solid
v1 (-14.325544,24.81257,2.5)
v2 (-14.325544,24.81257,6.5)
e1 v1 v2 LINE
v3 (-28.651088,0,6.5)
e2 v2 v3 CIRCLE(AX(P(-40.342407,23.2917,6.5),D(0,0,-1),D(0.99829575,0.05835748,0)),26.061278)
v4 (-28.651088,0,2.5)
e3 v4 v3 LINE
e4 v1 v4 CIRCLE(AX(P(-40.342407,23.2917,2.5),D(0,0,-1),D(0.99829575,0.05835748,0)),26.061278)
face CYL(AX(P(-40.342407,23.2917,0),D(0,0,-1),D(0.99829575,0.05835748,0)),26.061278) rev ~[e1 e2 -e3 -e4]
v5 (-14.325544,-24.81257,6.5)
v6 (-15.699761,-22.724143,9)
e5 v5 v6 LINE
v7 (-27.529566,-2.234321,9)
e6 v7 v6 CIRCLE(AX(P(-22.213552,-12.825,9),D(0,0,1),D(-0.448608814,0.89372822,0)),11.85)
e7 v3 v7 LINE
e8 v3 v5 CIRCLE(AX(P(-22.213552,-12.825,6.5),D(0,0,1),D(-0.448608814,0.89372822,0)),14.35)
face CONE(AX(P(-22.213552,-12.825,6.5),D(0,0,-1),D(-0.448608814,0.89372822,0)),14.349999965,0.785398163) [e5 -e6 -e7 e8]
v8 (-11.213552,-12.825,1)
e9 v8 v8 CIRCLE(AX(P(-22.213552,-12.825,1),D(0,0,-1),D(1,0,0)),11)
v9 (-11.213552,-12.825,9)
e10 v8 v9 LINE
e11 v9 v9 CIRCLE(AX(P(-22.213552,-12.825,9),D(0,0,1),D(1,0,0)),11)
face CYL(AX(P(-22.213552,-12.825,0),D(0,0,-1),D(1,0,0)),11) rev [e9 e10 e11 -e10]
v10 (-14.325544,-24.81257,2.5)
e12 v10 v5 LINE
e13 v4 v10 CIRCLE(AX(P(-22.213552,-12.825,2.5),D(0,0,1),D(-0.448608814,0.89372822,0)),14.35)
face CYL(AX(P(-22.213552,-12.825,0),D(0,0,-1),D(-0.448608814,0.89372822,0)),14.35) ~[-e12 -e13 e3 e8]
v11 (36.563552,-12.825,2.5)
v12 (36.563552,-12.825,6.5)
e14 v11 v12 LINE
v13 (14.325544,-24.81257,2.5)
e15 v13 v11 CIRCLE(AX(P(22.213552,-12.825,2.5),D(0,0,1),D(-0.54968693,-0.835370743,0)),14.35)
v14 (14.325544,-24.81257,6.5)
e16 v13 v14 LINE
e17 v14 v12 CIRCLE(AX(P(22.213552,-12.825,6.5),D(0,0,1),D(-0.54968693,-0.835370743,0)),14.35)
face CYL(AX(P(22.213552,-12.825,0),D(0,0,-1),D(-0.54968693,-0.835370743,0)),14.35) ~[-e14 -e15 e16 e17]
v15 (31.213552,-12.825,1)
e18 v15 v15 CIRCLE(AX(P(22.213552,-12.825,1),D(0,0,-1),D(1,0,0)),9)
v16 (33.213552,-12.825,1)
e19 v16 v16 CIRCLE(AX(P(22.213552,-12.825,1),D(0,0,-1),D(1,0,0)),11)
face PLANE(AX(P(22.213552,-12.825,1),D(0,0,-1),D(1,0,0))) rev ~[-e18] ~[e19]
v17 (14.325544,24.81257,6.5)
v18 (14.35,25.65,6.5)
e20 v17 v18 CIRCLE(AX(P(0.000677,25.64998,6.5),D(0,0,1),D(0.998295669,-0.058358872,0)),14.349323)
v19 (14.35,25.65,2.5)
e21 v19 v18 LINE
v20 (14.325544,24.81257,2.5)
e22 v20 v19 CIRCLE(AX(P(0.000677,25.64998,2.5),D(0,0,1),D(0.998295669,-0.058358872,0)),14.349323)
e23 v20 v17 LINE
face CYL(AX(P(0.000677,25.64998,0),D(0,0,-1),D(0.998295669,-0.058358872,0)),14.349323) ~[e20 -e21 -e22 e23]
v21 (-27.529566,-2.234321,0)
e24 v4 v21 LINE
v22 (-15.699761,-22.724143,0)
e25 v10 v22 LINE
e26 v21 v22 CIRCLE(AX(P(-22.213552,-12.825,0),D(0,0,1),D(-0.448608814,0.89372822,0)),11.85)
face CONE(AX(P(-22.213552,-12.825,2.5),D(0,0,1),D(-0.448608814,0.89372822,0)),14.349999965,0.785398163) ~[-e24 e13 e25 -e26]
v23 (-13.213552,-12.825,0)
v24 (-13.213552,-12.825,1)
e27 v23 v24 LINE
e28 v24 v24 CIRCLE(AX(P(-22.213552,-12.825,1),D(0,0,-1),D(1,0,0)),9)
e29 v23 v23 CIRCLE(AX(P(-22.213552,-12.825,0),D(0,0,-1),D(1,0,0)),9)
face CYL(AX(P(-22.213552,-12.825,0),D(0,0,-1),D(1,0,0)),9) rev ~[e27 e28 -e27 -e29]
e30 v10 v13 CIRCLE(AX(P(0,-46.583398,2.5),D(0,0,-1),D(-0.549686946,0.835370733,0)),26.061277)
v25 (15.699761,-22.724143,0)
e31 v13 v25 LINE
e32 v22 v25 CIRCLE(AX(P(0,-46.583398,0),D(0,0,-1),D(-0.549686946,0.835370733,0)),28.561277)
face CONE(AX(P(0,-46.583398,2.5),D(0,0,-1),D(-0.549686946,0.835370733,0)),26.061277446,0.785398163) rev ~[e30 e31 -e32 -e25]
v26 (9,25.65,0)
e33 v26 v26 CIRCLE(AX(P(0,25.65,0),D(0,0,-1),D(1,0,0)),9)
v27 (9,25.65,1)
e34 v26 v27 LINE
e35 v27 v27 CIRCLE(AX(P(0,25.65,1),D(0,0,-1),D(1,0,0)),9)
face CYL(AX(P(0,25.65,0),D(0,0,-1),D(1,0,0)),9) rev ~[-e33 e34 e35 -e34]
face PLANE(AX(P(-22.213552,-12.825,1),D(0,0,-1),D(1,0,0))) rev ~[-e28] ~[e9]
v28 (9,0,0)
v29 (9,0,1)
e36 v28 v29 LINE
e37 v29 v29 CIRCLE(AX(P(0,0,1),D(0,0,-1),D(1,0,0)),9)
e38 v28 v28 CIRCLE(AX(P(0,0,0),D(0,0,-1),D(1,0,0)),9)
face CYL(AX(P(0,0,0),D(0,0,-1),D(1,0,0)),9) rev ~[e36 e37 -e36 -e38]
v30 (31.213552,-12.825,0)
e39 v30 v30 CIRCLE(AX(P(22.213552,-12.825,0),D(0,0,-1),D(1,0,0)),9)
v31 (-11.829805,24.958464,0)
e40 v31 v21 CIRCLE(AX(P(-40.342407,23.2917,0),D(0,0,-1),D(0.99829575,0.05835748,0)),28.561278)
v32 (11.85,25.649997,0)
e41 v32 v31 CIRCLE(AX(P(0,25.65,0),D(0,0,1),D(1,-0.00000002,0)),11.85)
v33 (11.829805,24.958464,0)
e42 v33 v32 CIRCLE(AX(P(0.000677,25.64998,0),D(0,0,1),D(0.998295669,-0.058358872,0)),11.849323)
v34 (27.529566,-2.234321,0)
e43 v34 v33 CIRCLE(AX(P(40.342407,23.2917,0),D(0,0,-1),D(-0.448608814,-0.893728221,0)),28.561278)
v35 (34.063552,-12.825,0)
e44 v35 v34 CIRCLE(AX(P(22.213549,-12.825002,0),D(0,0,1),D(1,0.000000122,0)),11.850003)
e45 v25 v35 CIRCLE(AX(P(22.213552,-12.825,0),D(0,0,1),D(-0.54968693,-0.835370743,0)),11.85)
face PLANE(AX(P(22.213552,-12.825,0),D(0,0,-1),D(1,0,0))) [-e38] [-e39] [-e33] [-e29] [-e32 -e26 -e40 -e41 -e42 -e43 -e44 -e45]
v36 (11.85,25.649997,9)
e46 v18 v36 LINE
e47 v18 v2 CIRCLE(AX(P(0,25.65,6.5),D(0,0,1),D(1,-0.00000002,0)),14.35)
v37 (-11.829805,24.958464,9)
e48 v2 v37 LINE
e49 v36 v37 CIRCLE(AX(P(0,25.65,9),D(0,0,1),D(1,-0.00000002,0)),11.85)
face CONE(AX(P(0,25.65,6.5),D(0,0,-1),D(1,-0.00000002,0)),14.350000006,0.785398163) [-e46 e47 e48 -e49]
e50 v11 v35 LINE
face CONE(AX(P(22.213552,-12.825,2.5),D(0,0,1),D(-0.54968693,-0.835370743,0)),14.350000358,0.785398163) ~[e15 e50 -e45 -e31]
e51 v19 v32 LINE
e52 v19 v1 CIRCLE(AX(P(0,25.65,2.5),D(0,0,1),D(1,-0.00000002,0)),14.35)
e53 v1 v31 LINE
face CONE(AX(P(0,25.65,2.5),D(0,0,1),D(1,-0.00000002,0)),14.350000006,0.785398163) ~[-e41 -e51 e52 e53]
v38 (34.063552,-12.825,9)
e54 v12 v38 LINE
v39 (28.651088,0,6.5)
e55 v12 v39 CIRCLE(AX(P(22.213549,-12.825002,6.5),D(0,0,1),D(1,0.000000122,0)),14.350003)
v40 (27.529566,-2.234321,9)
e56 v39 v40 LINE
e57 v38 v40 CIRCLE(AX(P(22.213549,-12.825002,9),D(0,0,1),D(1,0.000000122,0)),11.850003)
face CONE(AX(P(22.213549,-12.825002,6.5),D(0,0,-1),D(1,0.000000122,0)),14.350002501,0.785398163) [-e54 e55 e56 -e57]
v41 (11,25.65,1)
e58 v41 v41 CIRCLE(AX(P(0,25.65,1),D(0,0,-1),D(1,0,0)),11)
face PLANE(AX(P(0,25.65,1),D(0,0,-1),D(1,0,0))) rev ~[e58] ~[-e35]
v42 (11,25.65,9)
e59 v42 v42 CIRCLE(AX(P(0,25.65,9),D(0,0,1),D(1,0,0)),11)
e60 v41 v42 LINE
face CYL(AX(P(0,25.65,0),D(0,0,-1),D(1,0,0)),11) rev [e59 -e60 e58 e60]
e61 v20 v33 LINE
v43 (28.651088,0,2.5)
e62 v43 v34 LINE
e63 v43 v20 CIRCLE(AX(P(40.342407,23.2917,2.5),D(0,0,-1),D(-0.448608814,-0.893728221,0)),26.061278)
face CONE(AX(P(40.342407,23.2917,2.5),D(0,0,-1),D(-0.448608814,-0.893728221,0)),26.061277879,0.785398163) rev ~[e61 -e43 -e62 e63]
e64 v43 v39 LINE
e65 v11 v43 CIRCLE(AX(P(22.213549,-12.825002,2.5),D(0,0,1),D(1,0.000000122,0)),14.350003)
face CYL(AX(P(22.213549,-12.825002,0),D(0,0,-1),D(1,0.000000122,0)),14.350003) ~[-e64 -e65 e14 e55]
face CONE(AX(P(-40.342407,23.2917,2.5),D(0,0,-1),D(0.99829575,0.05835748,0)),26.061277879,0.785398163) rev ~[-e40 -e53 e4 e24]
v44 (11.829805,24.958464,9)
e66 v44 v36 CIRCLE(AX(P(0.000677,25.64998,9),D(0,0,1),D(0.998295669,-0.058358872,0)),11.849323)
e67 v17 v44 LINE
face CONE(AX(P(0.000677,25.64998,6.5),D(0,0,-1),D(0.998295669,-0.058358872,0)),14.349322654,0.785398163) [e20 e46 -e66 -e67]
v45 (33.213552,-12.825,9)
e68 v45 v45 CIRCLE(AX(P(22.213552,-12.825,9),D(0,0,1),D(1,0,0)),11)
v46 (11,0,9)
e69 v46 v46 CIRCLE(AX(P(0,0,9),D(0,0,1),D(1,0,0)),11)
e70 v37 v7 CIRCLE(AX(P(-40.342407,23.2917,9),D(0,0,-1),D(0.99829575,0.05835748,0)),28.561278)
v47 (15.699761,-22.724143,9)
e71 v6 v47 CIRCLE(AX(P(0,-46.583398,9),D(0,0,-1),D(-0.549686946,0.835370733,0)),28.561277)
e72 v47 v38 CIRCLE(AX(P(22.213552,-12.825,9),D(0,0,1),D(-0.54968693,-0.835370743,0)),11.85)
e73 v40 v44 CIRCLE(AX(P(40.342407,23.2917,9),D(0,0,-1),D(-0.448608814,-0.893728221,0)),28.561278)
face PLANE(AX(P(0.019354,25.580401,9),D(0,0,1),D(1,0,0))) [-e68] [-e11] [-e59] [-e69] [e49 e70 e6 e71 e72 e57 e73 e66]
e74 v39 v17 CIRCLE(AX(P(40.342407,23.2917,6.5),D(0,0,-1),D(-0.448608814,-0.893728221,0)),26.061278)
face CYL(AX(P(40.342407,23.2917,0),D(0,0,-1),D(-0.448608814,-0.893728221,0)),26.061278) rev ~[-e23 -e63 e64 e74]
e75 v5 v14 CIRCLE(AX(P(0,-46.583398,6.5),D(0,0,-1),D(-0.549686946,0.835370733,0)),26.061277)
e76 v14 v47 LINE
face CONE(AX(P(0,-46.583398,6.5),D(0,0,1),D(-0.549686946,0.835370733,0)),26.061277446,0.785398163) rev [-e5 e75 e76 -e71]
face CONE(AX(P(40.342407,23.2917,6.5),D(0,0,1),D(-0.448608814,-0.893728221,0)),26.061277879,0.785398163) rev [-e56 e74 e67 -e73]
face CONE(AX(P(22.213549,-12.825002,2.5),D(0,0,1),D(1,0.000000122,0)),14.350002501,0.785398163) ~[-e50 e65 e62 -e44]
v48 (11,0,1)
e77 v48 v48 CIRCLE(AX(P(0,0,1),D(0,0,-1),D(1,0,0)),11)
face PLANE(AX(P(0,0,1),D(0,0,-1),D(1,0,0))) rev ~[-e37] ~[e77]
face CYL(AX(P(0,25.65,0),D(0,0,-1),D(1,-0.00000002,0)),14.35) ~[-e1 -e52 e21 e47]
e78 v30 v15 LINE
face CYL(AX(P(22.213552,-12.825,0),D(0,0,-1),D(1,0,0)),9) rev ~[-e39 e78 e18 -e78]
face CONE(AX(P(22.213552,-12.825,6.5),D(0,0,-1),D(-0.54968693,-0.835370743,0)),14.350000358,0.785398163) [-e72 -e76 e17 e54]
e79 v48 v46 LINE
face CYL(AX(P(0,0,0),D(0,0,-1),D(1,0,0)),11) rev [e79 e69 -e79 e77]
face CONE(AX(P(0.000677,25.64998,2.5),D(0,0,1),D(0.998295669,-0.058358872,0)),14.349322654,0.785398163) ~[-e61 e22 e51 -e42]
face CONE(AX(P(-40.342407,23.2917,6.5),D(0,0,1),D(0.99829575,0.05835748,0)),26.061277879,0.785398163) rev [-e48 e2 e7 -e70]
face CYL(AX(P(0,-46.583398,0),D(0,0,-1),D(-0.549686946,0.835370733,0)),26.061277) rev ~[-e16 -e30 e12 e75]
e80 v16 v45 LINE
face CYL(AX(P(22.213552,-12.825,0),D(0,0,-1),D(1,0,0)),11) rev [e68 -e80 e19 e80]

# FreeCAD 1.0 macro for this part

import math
import FreeCAD as App
import Part
import Sketcher


def edges_at(feature, points):
    """Names of the edges that pass closest to the given points."""
    edges = feature.Shape.Edges
    near = lambda p: min(range(len(edges)), key=lambda i: edges[i].distToShape(Part.Vertex(*p))[0])
    return sorted({f"Edge{near(p) + 1}" for p in points})

doc = App.newDocument("Part")
params = doc.addObject("Spreadsheet::Sheet", "Params")
for row, (alias, value) in enumerate([
    ("sketch1_diameter", "22 mm"),
    ("sketch1_diameter2", "22 mm"),
    ("sketch1_diameter3", "22 mm"),
    ("sketch1_diameter4", "22 mm"),
    ("sketch1_radius", "14.35 mm"),
    ("pad1_length", "9 mm"),
    ("chamfer_size", "2.5 mm"),
    ("sketch2_diameter", "22 mm"),
    ("sketch2_diameter2", "18 mm"),
    ("pad2_length", "1 mm"),
], start=1):
    params.set(f"A{row}", alias)
    params.set(f"B{row}", "=" + value)
    params.setAlias(f"B{row}", alias)

body = doc.addObject("PartDesign::Body", "Body")

# Sketch on XY plane
sketch1 = doc.addObject("Sketcher::SketchObject", "Sketch")
body.addObject(sketch1)
sketch1.AttachmentSupport = (doc.XY_Plane, [""])
sketch1.MapMode = "FlatFace"
sketch1.addGeometry(Part.ArcOfCircle(Part.Circle(App.Vector(0.000677, 25.64998, 0), App.Vector(0, 0, 1), 14.349323), math.radians(-3.345618), math.radians(0.000079)), False)
sketch1.addGeometry(Part.ArcOfCircle(Part.Circle(App.Vector(0, 25.65, 0), App.Vector(0, 0, 1), 14.35), math.radians(-0.000001), math.radians(183.34554)), False)
sketch1.addGeometry(Part.ArcOfCircle(Part.Circle(App.Vector(-40.342407, 23.2917, 0), App.Vector(0, 0, 1), 26.061278), math.radians(-63.345538), math.radians(3.345538)), False)
sketch1.addGeometry(Part.ArcOfCircle(Part.Circle(App.Vector(-22.213552, -12.825, 0), App.Vector(0, 0, 1), 14.35), math.radians(116.654462), math.radians(303.345538)), False)
sketch1.addGeometry(Part.ArcOfCircle(Part.Circle(App.Vector(0, -46.583398, 0), App.Vector(0, 0, 1), 26.061277), math.radians(56.654461), math.radians(123.345539)), False)
sketch1.addGeometry(Part.ArcOfCircle(Part.Circle(App.Vector(22.213552, -12.825, 0), App.Vector(0, 0, 1), 14.35), math.radians(-123.345538), math.radians(-0.000002)), False)
sketch1.addGeometry(Part.ArcOfCircle(Part.Circle(App.Vector(22.213549, -12.825002, 0), App.Vector(0, 0, 1), 14.350003), math.radians(0.000007), math.radians(63.345534)), False)
sketch1.addGeometry(Part.ArcOfCircle(Part.Circle(App.Vector(40.342407, 23.2917, 0), App.Vector(0, 0, 1), 26.061278), math.radians(176.654462), math.radians(243.345538)), False)
sketch1.addGeometry(Part.Circle(App.Vector(-22.213552, -12.825, 0), App.Vector(0, 0, 1), 11), False)
sketch1.addGeometry(Part.Circle(App.Vector(22.213552, -12.825, 0), App.Vector(0, 0, 1), 11), False)
sketch1.addGeometry(Part.Circle(App.Vector(0, 0, 0), App.Vector(0, 0, 1), 11), False)
sketch1.addGeometry(Part.Circle(App.Vector(0, 25.65, 0), App.Vector(0, 0, 1), 11), False)
sketch1.addConstraint(Sketcher.Constraint("Coincident", 0, 2, 1, 1))
sketch1.addConstraint(Sketcher.Constraint("Coincident", 1, 2, 2, 2))
sketch1.addConstraint(Sketcher.Constraint("Coincident", 2, 1, 3, 1))
sketch1.addConstraint(Sketcher.Constraint("Coincident", 3, 2, 4, 2))
sketch1.addConstraint(Sketcher.Constraint("Coincident", 4, 1, 5, 1))
sketch1.addConstraint(Sketcher.Constraint("Coincident", 5, 2, 6, 1))
sketch1.addConstraint(Sketcher.Constraint("Coincident", 6, 2, 7, 2))
sketch1.addConstraint(Sketcher.Constraint("Coincident", 7, 1, 0, 1))
sketch1.addConstraint(Sketcher.Constraint("Coincident", 10, 3, -1, 1))
sketch1.addConstraint(Sketcher.Constraint("Coincident", 6, 3, 5, 3))
sketch1.addConstraint(Sketcher.Constraint("Coincident", 8, 3, 3, 3))
sketch1.addConstraint(Sketcher.Constraint("Coincident", 9, 3, 5, 3))
sketch1.addConstraint(Sketcher.Constraint("Coincident", 11, 3, 1, 3))
sketch1.addConstraint(Sketcher.Constraint("PointOnObject", 1, 3, -2))
sketch1.addConstraint(Sketcher.Constraint("PointOnObject", 4, 3, -2))
sketch1.addConstraint(Sketcher.Constraint("PointOnObject", 2, 1, -1))
sketch1.addConstraint(Sketcher.Constraint("PointOnObject", 6, 2, -1))
sketch1.addConstraint(Sketcher.Constraint("Diameter", 8, 22.0))
sketch1.addConstraint(Sketcher.Constraint("Diameter", 9, 22.0))
sketch1.addConstraint(Sketcher.Constraint("Diameter", 10, 22.0))
sketch1.addConstraint(Sketcher.Constraint("Diameter", 11, 22.0))
sketch1.addConstraint(Sketcher.Constraint("Radius", 1, 14.35))
sketch1.addConstraint(Sketcher.Constraint("Radius", 3, 14.35))
sketch1.addConstraint(Sketcher.Constraint("Radius", 5, 14.35))
sketch1.addConstraint(Sketcher.Constraint("DistanceY", -1, 1, 1, 3, 25.65))
sketch1.addConstraint(Sketcher.Constraint("DistanceY", -1, 1, 0, 2, 25.65))
sketch1.addConstraint(Sketcher.Constraint("DistanceY", 3, 3, -1, 1, 12.825))
sketch1.addConstraint(Sketcher.Constraint("DistanceY", 5, 3, -1, 1, 12.825))
sketch1.addConstraint(Sketcher.Constraint("DistanceY", 5, 2, -1, 1, 12.825))
sketch1.addConstraint(Sketcher.Constraint("Radius", 0, 14.349323))
sketch1.addConstraint(Sketcher.Constraint("Radius", 2, 26.061278))
sketch1.addConstraint(Sketcher.Constraint("Radius", 4, 26.061277))
sketch1.addConstraint(Sketcher.Constraint("Radius", 7, 26.061278))
sketch1.addConstraint(Sketcher.Constraint("DistanceY", -1, 1, 2, 3, 23.2917))
sketch1.addConstraint(Sketcher.Constraint("DistanceY", -1, 1, 7, 3, 23.2917))
sketch1.addConstraint(Sketcher.Constraint("DistanceY", -1, 1, 1, 2, 24.81257))
sketch1.addConstraint(Sketcher.Constraint("DistanceY", 3, 2, -1, 1, 24.81257))
sketch1.addConstraint(Sketcher.Constraint("DistanceY", 4, 1, -1, 1, 24.81257))
sketch1.addConstraint(Sketcher.Constraint("DistanceY", -1, 1, 7, 1, 24.81257))
sketch1.setExpression("Constraints[17]", "Params.sketch1_diameter")
sketch1.setExpression("Constraints[18]", "Params.sketch1_diameter2")
sketch1.setExpression("Constraints[19]", "Params.sketch1_diameter3")
sketch1.setExpression("Constraints[20]", "Params.sketch1_diameter4")
sketch1.setExpression("Constraints[21]", "Params.sketch1_radius")
pad1 = doc.addObject("PartDesign::Pad", "Pad")
body.addObject(pad1)
pad1.Profile = sketch1
pad1.setExpression("Length", "Params.pad1_length")
doc.recompute()

chamfer = doc.addObject("PartDesign::Chamfer", "Chamfer")
body.addObject(chamfer)
chamfer.Base = (pad1, edges_at(pad1, [(17.773, 10.261, 9), (17.773, 10.261, 0)]))
chamfer.setExpression("Size", "Params.chamfer_size")

# Sketch on XY plane
sketch2 = doc.addObject("Sketcher::SketchObject", "Sketch001")
body.addObject(sketch2)
sketch2.AttachmentSupport = (doc.XY_Plane, [""])
sketch2.MapMode = "FlatFace"
sketch2.addGeometry(Part.Circle(App.Vector(22, -13, 0), App.Vector(0, 0, 1), 11), False)
sketch2.addGeometry(Part.Circle(App.Vector(22, -13, 0), App.Vector(0, 0, 1), 9), False)
sketch2.addGeometry(Part.Circle(App.Vector(-22, -13, 0), App.Vector(0, 0, 1), 11), False)
sketch2.addGeometry(Part.Circle(App.Vector(-22, -13, 0), App.Vector(0, 0, 1), 9), False)
sketch2.addGeometry(Part.Circle(App.Vector(0, 0, 0), App.Vector(0, 0, 1), 11), False)
sketch2.addGeometry(Part.Circle(App.Vector(0, 0, 0), App.Vector(0, 0, 1), 9), False)
sketch2.addGeometry(Part.Circle(App.Vector(0, 26, 0), App.Vector(0, 0, 1), 11), False)
sketch2.addGeometry(Part.Circle(App.Vector(0, 26, 0), App.Vector(0, 0, 1), 9), False)
sketch2.addConstraint(Sketcher.Constraint("Coincident", 4, 3, -1, 1))
sketch2.addConstraint(Sketcher.Constraint("Coincident", 5, 3, -1, 1))
sketch2.addConstraint(Sketcher.Constraint("Coincident", 1, 3, 0, 3))
sketch2.addConstraint(Sketcher.Constraint("Coincident", 3, 3, 2, 3))
sketch2.addConstraint(Sketcher.Constraint("Coincident", 7, 3, 6, 3))
sketch2.addConstraint(Sketcher.Constraint("Equal", 0, 2))
sketch2.addConstraint(Sketcher.Constraint("Equal", 1, 3))
sketch2.addConstraint(Sketcher.Constraint("Equal", 2, 4))
sketch2.addConstraint(Sketcher.Constraint("Equal", 3, 5))
sketch2.addConstraint(Sketcher.Constraint("Equal", 4, 6))
sketch2.addConstraint(Sketcher.Constraint("Equal", 5, 7))
sketch2.addConstraint(Sketcher.Constraint("Symmetric", 0, 3, 2, 3, -2))
sketch2.addConstraint(Sketcher.Constraint("PointOnObject", 6, 3, -2))
sketch2.addConstraint(Sketcher.Constraint("Diameter", 0, 22.0))
sketch2.addConstraint(Sketcher.Constraint("Diameter", 1, 18.0))
sketch2.addConstraint(Sketcher.Constraint("DistanceY", -1, 1, 6, 3, 25.65))
sketch2.addConstraint(Sketcher.Constraint("DistanceY", 0, 3, -1, 1, 12.825))
sketch2.addConstraint(Sketcher.Constraint("DistanceX", -1, 1, 0, 3, 22.213552))
sketch2.setExpression("Constraints[13]", "Params.sketch2_diameter")
sketch2.setExpression("Constraints[14]", "Params.sketch2_diameter2")
pad2 = doc.addObject("PartDesign::Pad", "Pad001")
body.addObject(pad2)
pad2.Profile = sketch2
pad2.setExpression("Length", "Params.pad2_length")

doc.recompute()
